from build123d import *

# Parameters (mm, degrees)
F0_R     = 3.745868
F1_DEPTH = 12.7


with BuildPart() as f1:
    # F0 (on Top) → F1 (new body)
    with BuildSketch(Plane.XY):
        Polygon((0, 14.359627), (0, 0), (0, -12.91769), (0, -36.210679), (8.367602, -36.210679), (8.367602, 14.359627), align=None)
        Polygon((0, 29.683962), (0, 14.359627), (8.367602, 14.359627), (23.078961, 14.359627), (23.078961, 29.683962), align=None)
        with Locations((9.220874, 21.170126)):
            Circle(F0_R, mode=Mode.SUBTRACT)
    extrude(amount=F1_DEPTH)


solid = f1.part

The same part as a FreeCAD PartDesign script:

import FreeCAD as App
import Part
import Sketcher

V = App.Vector
Q = App.Units.Quantity

doc = App.newDocument("Part")
body = doc.addObject("PartDesign::Body", "Body")

# Sketch on XY plane
sketch1 = body.newObject("Sketcher::SketchObject", "Sketch")
sketch1.AttachmentSupport = (doc.getObject("XY_Plane"), [""])
sketch1.MapMode = "FlatFace"
sketch1.addGeometry(Part.LineSegment(V(0, -36.210679, 0), V(8.367602, -36.210679, 0)), False)
sketch1.addGeometry(Part.LineSegment(V(8.367602, -36.210679, 0), V(8.367602, 14.359627, 0)), False)
sketch1.addGeometry(Part.LineSegment(V(8.367602, 14.359627, 0), V(23.078961, 14.359627, 0)), False)
sketch1.addGeometry(Part.LineSegment(V(23.078961, 14.359627, 0), V(23.078961, 29.683962, 0)), False)
sketch1.addGeometry(Part.LineSegment(V(23.078961, 29.683962, 0), V(0, 29.683962, 0)), False)
sketch1.addGeometry(Part.LineSegment(V(0, 29.683962, 0), V(0, -36.210679, 0)), False)
sketch1.addGeometry(Part.Circle(V(9.220874, 21.170126, 0), V(0, 0, 1), 3.745868), False)
sketch1.addConstraint(Sketcher.Constraint("Coincident", 0, 2, 1, 1))
sketch1.addConstraint(Sketcher.Constraint("Coincident", 1, 2, 2, 1))
sketch1.addConstraint(Sketcher.Constraint("Coincident", 2, 2, 3, 1))
sketch1.addConstraint(Sketcher.Constraint("Coincident", 3, 2, 4, 1))
sketch1.addConstraint(Sketcher.Constraint("Coincident", 4, 2, 5, 1))
sketch1.addConstraint(Sketcher.Constraint("Coincident", 5, 2, 0, 1))
sketch1.addConstraint(Sketcher.Constraint("Horizontal", 0))
sketch1.addConstraint(Sketcher.Constraint("Vertical", 1))
sketch1.addConstraint(Sketcher.Constraint("Horizontal", 2))
sketch1.addConstraint(Sketcher.Constraint("Vertical", 3))
sketch1.addConstraint(Sketcher.Constraint("Horizontal", 4))
sketch1.addConstraint(Sketcher.Constraint("Vertical", 5))
sketch1.addConstraint(Sketcher.Constraint("PointOnObject", 4, 2, -2))
sketch1.addConstraint(Sketcher.Constraint("Diameter", 6, 7.491736))
sketch1.addConstraint(Sketcher.Constraint("DistanceX", 2, 1, 2, 2, 14.711359))
sketch1.addConstraint(Sketcher.Constraint("DistanceX", 4, 2, 4, 1, 23.078961))
sketch1.addConstraint(Sketcher.Constraint("DistanceY", 5, 2, 5, 1, 65.894641))
sketch1.addConstraint(Sketcher.Constraint("DistanceY", 1, 2, 6, 3, 6.810499))
sketch1.addConstraint(Sketcher.Constraint("DistanceY", 1, 1, 1, 2, 50.570306))
sketch1.addConstraint(Sketcher.Constraint("DistanceY", 0, 2, -1, 1, 36.210679))
sketch1.addConstraint(Sketcher.Constraint("DistanceX", -1, 1, 6, 3, 9.220874))
pad1 = body.newObject("PartDesign::Pad", "Pad")
pad1.Profile = sketch1
pad1.Length = Q("0.5 in")

doc.recompute()
